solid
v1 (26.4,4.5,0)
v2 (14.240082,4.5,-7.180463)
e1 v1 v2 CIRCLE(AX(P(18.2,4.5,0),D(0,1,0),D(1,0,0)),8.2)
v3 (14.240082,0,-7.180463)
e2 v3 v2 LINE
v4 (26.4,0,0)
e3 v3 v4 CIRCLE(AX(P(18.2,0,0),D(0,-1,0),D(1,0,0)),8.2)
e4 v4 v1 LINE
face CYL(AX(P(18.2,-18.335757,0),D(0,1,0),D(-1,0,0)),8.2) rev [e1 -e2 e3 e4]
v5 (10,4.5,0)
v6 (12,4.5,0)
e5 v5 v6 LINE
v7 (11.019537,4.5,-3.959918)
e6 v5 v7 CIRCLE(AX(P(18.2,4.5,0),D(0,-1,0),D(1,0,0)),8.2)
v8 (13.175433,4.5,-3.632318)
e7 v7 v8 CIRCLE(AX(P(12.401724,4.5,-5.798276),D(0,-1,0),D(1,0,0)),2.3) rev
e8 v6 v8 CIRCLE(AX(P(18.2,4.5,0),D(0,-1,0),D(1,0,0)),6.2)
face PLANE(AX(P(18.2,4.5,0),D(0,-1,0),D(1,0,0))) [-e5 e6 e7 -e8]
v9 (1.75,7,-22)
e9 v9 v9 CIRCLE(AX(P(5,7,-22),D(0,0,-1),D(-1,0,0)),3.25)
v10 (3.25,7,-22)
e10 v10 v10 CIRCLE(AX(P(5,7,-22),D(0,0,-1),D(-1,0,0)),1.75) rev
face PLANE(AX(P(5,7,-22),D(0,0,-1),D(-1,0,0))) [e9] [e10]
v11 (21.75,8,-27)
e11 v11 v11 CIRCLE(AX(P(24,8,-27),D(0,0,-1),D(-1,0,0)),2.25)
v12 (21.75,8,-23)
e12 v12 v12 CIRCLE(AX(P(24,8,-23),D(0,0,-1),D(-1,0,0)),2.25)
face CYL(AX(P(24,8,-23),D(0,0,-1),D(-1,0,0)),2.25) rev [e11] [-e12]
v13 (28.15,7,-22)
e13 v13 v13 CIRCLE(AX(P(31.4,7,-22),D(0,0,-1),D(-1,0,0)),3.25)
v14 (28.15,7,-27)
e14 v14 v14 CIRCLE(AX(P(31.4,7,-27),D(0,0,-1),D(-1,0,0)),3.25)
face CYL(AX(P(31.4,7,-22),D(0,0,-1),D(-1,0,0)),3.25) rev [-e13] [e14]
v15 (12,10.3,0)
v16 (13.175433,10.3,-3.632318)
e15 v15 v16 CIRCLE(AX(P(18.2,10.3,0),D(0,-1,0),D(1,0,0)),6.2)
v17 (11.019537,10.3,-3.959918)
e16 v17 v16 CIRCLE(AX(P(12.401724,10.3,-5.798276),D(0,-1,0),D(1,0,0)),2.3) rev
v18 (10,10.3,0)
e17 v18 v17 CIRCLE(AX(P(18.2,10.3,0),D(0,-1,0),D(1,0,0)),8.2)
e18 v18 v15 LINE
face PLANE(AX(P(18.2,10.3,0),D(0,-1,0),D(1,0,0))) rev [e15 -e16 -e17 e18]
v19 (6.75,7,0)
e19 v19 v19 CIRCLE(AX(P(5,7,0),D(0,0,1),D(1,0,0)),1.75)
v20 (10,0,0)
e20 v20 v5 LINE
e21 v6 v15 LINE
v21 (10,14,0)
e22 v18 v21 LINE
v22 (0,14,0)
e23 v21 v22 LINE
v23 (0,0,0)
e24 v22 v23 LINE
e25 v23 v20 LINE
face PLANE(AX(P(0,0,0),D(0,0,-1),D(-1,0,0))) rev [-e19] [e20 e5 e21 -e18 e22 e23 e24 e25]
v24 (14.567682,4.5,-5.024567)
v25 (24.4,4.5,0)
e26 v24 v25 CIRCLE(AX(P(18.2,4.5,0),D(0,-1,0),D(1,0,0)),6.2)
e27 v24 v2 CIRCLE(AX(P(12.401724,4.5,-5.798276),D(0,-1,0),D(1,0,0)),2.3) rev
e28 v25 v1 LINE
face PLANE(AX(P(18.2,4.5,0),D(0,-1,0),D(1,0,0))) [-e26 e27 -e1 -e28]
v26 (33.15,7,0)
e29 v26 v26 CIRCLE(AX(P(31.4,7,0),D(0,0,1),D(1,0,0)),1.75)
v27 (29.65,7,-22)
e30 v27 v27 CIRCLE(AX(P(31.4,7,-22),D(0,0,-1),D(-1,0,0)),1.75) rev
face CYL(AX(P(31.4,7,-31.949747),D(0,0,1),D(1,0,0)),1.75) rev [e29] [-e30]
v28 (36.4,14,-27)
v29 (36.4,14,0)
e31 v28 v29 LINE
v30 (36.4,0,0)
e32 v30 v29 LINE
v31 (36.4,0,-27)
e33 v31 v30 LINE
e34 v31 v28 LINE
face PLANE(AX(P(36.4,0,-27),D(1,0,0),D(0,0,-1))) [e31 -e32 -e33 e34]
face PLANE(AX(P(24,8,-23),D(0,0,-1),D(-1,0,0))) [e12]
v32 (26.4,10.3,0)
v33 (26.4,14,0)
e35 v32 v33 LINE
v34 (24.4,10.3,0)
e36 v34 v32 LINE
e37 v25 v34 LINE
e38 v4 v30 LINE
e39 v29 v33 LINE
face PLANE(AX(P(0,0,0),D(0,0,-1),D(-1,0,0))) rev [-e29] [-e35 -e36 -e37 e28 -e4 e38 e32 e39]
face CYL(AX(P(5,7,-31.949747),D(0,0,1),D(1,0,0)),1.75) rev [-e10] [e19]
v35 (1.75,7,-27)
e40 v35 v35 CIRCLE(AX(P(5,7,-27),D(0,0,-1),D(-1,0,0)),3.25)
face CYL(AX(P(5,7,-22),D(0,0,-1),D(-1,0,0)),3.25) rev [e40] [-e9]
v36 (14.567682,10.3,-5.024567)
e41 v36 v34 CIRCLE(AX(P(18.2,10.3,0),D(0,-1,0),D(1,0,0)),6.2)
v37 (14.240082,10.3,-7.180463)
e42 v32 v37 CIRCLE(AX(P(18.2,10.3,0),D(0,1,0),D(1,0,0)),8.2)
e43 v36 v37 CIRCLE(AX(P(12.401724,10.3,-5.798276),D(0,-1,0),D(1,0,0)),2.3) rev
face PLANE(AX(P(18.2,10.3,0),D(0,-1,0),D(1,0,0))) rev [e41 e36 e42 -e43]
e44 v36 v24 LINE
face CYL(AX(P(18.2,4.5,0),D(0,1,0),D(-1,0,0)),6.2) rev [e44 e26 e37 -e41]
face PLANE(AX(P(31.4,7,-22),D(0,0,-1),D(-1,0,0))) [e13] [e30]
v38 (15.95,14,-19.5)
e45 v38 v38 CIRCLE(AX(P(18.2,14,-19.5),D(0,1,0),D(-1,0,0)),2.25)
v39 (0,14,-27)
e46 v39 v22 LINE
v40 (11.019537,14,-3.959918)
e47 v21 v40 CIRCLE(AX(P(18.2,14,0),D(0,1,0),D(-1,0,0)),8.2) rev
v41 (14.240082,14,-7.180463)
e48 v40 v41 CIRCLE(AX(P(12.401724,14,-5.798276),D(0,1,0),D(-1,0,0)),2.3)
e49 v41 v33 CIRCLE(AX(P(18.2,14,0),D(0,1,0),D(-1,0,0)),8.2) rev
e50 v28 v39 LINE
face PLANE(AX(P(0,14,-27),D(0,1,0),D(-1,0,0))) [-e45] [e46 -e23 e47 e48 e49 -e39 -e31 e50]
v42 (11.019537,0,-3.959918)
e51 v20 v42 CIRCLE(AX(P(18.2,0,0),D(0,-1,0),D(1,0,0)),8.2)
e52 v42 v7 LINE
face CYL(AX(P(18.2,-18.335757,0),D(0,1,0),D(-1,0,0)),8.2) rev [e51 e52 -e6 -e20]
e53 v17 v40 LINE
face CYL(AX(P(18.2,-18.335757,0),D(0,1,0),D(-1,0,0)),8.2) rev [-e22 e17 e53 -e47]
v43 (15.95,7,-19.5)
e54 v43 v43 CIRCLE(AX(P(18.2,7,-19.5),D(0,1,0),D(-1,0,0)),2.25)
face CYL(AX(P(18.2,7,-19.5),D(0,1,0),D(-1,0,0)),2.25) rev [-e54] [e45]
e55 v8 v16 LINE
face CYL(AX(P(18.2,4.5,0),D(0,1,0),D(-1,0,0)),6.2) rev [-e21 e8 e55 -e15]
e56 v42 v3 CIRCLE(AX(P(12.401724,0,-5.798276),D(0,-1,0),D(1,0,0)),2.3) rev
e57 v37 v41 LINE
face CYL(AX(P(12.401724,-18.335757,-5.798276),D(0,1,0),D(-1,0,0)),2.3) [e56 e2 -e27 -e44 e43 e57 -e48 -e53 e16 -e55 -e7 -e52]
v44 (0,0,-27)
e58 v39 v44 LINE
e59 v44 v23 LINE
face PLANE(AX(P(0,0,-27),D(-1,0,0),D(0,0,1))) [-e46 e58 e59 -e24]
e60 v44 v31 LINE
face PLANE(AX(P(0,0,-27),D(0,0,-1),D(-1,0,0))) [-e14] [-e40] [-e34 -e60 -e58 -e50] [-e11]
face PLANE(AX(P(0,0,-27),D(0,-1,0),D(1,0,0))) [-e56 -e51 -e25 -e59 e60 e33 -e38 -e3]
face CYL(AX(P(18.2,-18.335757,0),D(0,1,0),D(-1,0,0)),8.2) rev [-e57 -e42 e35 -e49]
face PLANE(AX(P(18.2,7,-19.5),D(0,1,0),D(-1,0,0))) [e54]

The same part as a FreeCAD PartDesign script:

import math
import FreeCAD as App
import Part
import Sketcher
Q = App.Units.Quantity


def add_polygon(sketch, points):
    """Adds a closed chain of lines whose ends are joined by coincident constraints."""
    first, n = sketch.GeometryCount, len(points)
    for a, b in zip(points, points[1:] + points[:1]):
        sketch.addGeometry(Part.LineSegment(App.Vector(*a, 0), App.Vector(*b, 0)), False)
    for i in range(n):
        sketch.addConstraint(Sketcher.Constraint("Coincident", first + i, 2, first + (i + 1) % n, 1))

doc = App.newDocument("Part")
body = doc.addObject("PartDesign::Body", "Body")

sketch1 = doc.addObject("Sketcher::SketchObject", "Sketch")
body.addObject(sketch1)
sketch1.AttachmentSupport = (doc.XY_Plane, [""])
sketch1.MapMode = "FlatFace"
add_polygon(sketch1, [(0, 14), (0, 0), (36, 0), (36, 14)])
sketch1.addConstraint([
    Sketcher.Constraint("Vertical", 0),
    Sketcher.Constraint("Horizontal", 1),
    Sketcher.Constraint("Vertical", 2),
    Sketcher.Constraint("Horizontal", 3),
    Sketcher.Constraint("Coincident", 0, 2, -1, 1),
    Sketcher.Constraint("DistanceY", 0, 2, 0, 1, Q("14 mm")),
    Sketcher.Constraint("DistanceX", 1, 1, 1, 2, Q("36.4 mm")),
])
pad1 = doc.addObject("PartDesign::Pad", "Pad")
body.addObject(pad1)
pad1.Profile = sketch1
pad1.Length = 27
pad1.Reversed = True

sketch2 = doc.addObject("Sketcher::SketchObject", "Sketch001")
body.addObject(sketch2)
sketch2.AttachmentSupport = (doc.XZ_Plane, [""])
sketch2.MapMode = "FlatFace"
sketch2.AttachmentOffset = App.Placement(App.Vector(0, 0, -14), App.Rotation())
sketch2.addGeometry([
    Part.ArcOfCircle(Part.Circle(App.Vector(18.2, 0, 0), App.Vector(0, 0, 1), 8.2), math.radians(-180), math.radians(-151)),
    Part.LineSegment(App.Vector(10, 0, 0), App.Vector(26.4, 0, 0)),
    Part.ArcOfCircle(Part.Circle(App.Vector(18.2, 0, 0), App.Vector(0, 0, 1), 8.2), math.radians(-119), math.radians(0)),
    Part.ArcOfCircle(Part.Circle(App.Vector(12.4, -5.8, 0), App.Vector(0, 0, 1), 2.3), math.radians(-37), math.radians(127)),
], False)
sketch2.addConstraint([
    Sketcher.Constraint("Coincident", 0, 1, 1, 1),
    Sketcher.Constraint("Coincident", 1, 2, 2, 2),
    Sketcher.Constraint("Coincident", 2, 1, 3, 1),
    Sketcher.Constraint("Coincident", 3, 2, 0, 2),
    Sketcher.Constraint("Horizontal", 1),
    Sketcher.Constraint("Coincident", 2, 3, 0, 3),
    Sketcher.Constraint("Equal", 0, 2),
    Sketcher.Constraint("PointOnObject", 0, 3, -1),
    Sketcher.Constraint("PointOnObject", 0, 1, -1),
    Sketcher.Constraint("Radius", 0, Q("8.2 mm")),
    Sketcher.Constraint("Radius", 3, Q("2.3 mm")),
    Sketcher.Constraint("DistanceX", -1, 1, 0, 1, Q("10 mm")),
    Sketcher.Constraint("DistanceX", -1, 1, 2, 1, Q("14.240082 mm")),
    Sketcher.Constraint("DistanceY", 3, 2, -1, 1, Q("3.959918 mm")),
])
pocket1 = doc.addObject("PartDesign::Pocket", "Pocket")
body.addObject(pocket1)
pocket1.Profile = sketch2
pocket1.Length = 14
pocket1.Reversed = True

sketch3 = doc.addObject("Sketcher::SketchObject", "Sketch002")
body.addObject(sketch3)
sketch3.AttachmentSupport = (doc.XZ_Plane, [""])
sketch3.MapMode = "FlatFace"
sketch3.AttachmentOffset = App.Placement(App.Vector(0, 0, -10.3), App.Rotation())
sketch3.addGeometry([
    Part.LineSegment(App.Vector(10, 0, 0), App.Vector(12, 0, 0)),
    Part.ArcOfCircle(Part.Circle(App.Vector(18.2, 0, 0), App.Vector(0, 0, 1), 6.2), math.radians(180), math.radians(360)),
    Part.LineSegment(App.Vector(24.4, 0, 0), App.Vector(26.4, 0, 0)),
    Part.ArcOfCircle(Part.Circle(App.Vector(18.2, 0, 0), App.Vector(0, 0, 1), 8.2), math.radians(180), math.radians(360)),
], False)
sketch3.addConstraint([
    Sketcher.Constraint("Coincident", 0, 2, 1, 1),
    Sketcher.Constraint("Coincident", 1, 2, 2, 1),
    Sketcher.Constraint("Coincident", 2, 2, 3, 2),
    Sketcher.Constraint("Coincident", 3, 1, 0, 1),
    Sketcher.Constraint("Horizontal", 0),
    Sketcher.Constraint("Horizontal", 2),
    Sketcher.Constraint("Coincident", 3, 3, 1, 3),
    Sketcher.Constraint("PointOnObject", 1, 3, -1),
    Sketcher.Constraint("PointOnObject", 0, 2, -1),
    Sketcher.Constraint("PointOnObject", 1, 2, -1),
    Sketcher.Constraint("Radius", 1, Q("6.2 mm")),
    Sketcher.Constraint("Radius", 3, Q("8.2 mm")),
    Sketcher.Constraint("DistanceX", -1, 1, 0, 2, Q("12 mm")),
])
pad2 = doc.addObject("PartDesign::Pad", "Pad001")
body.addObject(pad2)
pad2.Profile = sketch3
pad2.Length = 5.8

sketch4 = doc.addObject("Sketcher::SketchObject", "Sketch003")
body.addObject(sketch4)
sketch4.AttachmentSupport = (doc.XY_Plane, [""])
sketch4.MapMode = "FlatFace"
sketch4.addGeometry([
    Part.Circle(App.Vector(5, 7, 0), App.Vector(0, 0, 1), 1.8),
    Part.Circle(App.Vector(31.4, 7, 0), App.Vector(0, 0, 1), 1.8),
], False)
sketch4.addConstraint([
    Sketcher.Constraint("Equal", 0, 1),
    Sketcher.Constraint("Horizontal", 0, 3, 1, 3),
    Sketcher.Constraint("Diameter", 0, Q("3.5 mm")),
    Sketcher.Constraint("DistanceX", -1, 1, 0, 3, Q("5 mm")),
    Sketcher.Constraint("DistanceY", -1, 1, 0, 3, Q("7 mm")),
    Sketcher.Constraint("DistanceX", -1, 1, 1, 3, Q("31.4 mm")),
])
pocket2 = doc.addObject("PartDesign::Pocket", "Pocket001")
body.addObject(pocket2)
pocket2.Profile = sketch4
pocket2.Length = 27

sketch5 = doc.addObject("Sketcher::SketchObject", "Sketch004")
body.addObject(sketch5)
sketch5.AttachmentSupport = (doc.XY_Plane, [""])
sketch5.MapMode = "FlatFace"
sketch5.AttachmentOffset = App.Placement(App.Vector(0, 0, -27), App.Rotation())
sketch5.addGeometry([
    Part.Circle(App.Vector(31.4, 7, 0), App.Vector(0, 0, 1), 3.2),
    Part.Circle(App.Vector(5, 7, 0), App.Vector(0, 0, 1), 3.2),
], False)
sketch5.addConstraint([
    Sketcher.Constraint("Equal", 0, 1),
    Sketcher.Constraint("Horizontal", 0, 3, 1, 3),
    Sketcher.Constraint("Diameter", 0, Q("6.5 mm")),
    Sketcher.Constraint("DistanceY", -1, 1, 0, 3, Q("7 mm")),
    Sketcher.Constraint("DistanceX", -1, 1, 1, 3, Q("5 mm")),
    Sketcher.Constraint("DistanceX", -1, 1, 0, 3, Q("31.4 mm")),
])
pocket3 = doc.addObject("PartDesign::Pocket", "Pocket002")
body.addObject(pocket3)
pocket3.Profile = sketch5
pocket3.Length = 5
pocket3.Reversed = True

sketch6 = doc.addObject("Sketcher::SketchObject", "Sketch005")
body.addObject(sketch6)
sketch6.AttachmentSupport = (doc.XZ_Plane, [""])
sketch6.MapMode = "FlatFace"
sketch6.AttachmentOffset = App.Placement(App.Vector(0, 0, -14), App.Rotation())
sketch6.addGeometry(Part.Circle(App.Vector(18.2, -19.5, 0), App.Vector(0, 0, 1), 2.2), False)
sketch6.addConstraint([
    Sketcher.Constraint("Diameter", 0, Q("4.5 mm")),
    Sketcher.Constraint("DistanceX", -1, 1, 0, 3, Q("18.2 mm")),
    Sketcher.Constraint("DistanceY", 0, 3, -1, 1, Q("19.5 mm")),
])
pocket4 = doc.addObject("PartDesign::Pocket", "Pocket003")
body.addObject(pocket4)
pocket4.Profile = sketch6
pocket4.Length = 7
pocket4.Reversed = True

sketch7 = doc.addObject("Sketcher::SketchObject", "Sketch006")
body.addObject(sketch7)
sketch7.AttachmentSupport = (doc.XY_Plane, [""])
sketch7.MapMode = "FlatFace"
sketch7.AttachmentOffset = App.Placement(App.Vector(0, 0, -27), App.Rotation())
sketch7.addGeometry(Part.Circle(App.Vector(24, 8, 0), App.Vector(0, 0, 1), 2.2), False)
sketch7.addConstraint([
    Sketcher.Constraint("Diameter", 0, Q("4.5 mm")),
    Sketcher.Constraint("DistanceX", -1, 1, 0, 3, Q("24 mm")),
    Sketcher.Constraint("DistanceY", -1, 1, 0, 3, Q("8 mm")),
])
pocket5 = doc.addObject("PartDesign::Pocket", "Pocket004")
body.addObject(pocket5)
pocket5.Profile = sketch7
pocket5.Length = 4
pocket5.Reversed = True

doc.recompute()
